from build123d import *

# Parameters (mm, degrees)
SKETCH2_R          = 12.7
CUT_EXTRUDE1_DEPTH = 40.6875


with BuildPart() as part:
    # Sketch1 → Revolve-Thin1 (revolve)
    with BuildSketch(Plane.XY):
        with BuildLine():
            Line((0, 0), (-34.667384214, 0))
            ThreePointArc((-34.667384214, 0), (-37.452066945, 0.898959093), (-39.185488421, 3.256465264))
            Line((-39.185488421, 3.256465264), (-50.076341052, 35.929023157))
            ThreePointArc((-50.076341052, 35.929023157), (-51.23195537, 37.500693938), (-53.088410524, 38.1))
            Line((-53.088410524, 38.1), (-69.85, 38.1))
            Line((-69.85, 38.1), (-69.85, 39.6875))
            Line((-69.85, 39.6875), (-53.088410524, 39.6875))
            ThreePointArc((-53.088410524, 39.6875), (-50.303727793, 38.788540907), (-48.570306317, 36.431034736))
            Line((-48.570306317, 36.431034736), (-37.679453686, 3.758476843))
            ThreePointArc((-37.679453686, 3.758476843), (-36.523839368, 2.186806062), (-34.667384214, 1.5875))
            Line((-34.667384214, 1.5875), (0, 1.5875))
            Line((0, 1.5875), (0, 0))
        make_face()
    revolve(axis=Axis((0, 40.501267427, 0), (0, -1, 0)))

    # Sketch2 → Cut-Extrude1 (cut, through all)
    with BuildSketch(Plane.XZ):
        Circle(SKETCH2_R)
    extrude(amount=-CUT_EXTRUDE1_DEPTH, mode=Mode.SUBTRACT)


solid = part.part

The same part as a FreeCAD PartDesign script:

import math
import FreeCAD as App
import Part
import Sketcher

V = App.Vector
Q = App.Units.Quantity

doc = App.newDocument("Part")
params = doc.addObject("Spreadsheet::Sheet", "Params")
for row, (alias, value) in enumerate([
    ("sketch1_radius", "0.125 in"),
    ("sketch1_radius2", "0.1875 in"),
    ("revolution_angle", "360 deg"),
    ("sketch2_diameter", "1 in"),
], start=1):
    params.set(f"A{row}", alias)
    params.set(f"B{row}", "=" + value)
    params.setAlias(f"B{row}", alias)

body = doc.addObject("PartDesign::Body", "Body")

# Sketch on XY plane
sketch1 = body.newObject("Sketcher::SketchObject", "Sketch")
sketch1.AttachmentSupport = (doc.getObject("XY_Plane"), [""])
sketch1.MapMode = "FlatFace"
sketch1.addGeometry(Part.LineSegment(V(-34.7, 0, 0), V(0, 0, 0)), False)
sketch1.addGeometry(Part.LineSegment(V(0, 0, 0), V(0, 1.6, 0)), False)
sketch1.addGeometry(Part.LineSegment(V(0, 1.6, 0), V(-34.7, 1.6, 0)), False)
sketch1.addGeometry(Part.ArcOfCircle(Part.Circle(V(-34.7, 4.8, 0), V(0, 0, 1), 3.2), math.radians(-162), math.radians(-90)), False)
sketch1.addGeometry(Part.LineSegment(V(-37.7, 3.8, 0), V(-48.6, 36.4, 0)), False)
sketch1.addGeometry(Part.ArcOfCircle(Part.Circle(V(-53.1, 34.9, 0), V(0, 0, 1), 4.8), math.radians(18), math.radians(90)), False)
sketch1.addGeometry(Part.LineSegment(V(-53.1, 39.7, 0), V(-69.8, 39.7, 0)), False)
sketch1.addGeometry(Part.LineSegment(V(-69.8, 39.7, 0), V(-69.8, 38.1, 0)), False)
sketch1.addGeometry(Part.LineSegment(V(-69.8, 38.1, 0), V(-53.1, 38.1, 0)), False)
sketch1.addGeometry(Part.ArcOfCircle(Part.Circle(V(-53.1, 34.9, 0), V(0, 0, 1), 3.2), math.radians(18), math.radians(90)), False)
sketch1.addGeometry(Part.LineSegment(V(-50.1, 35.9, 0), V(-39.2, 3.3, 0)), False)
sketch1.addGeometry(Part.ArcOfCircle(Part.Circle(V(-34.7, 4.8, 0), V(0, 0, 1), 4.8), math.radians(-162), math.radians(-90)), False)
sketch1.addConstraint(Sketcher.Constraint("Coincident", 0, 2, 1, 1))
sketch1.addConstraint(Sketcher.Constraint("Coincident", 1, 2, 2, 1))
sketch1.addConstraint(Sketcher.Constraint("Tangent", 2, 2, 3, 2))
sketch1.addConstraint(Sketcher.Constraint("Tangent", 3, 1, 4, 1))
sketch1.addConstraint(Sketcher.Constraint("Tangent", 4, 2, 5, 1))
sketch1.addConstraint(Sketcher.Constraint("Tangent", 5, 2, 6, 1))
sketch1.addConstraint(Sketcher.Constraint("Coincident", 6, 2, 7, 1))
sketch1.addConstraint(Sketcher.Constraint("Coincident", 7, 2, 8, 1))
sketch1.addConstraint(Sketcher.Constraint("Tangent", 8, 2, 9, 2))
sketch1.addConstraint(Sketcher.Constraint("Tangent", 9, 1, 10, 1))
sketch1.addConstraint(Sketcher.Constraint("Tangent", 10, 2, 11, 1))
sketch1.addConstraint(Sketcher.Constraint("Tangent", 11, 2, 0, 1))
sketch1.addConstraint(Sketcher.Constraint("Horizontal", 0))
sketch1.addConstraint(Sketcher.Constraint("Vertical", 1))
sketch1.addConstraint(Sketcher.Constraint("Horizontal", 2))
sketch1.addConstraint(Sketcher.Constraint("Horizontal", 6))
sketch1.addConstraint(Sketcher.Constraint("Vertical", 7))
sketch1.addConstraint(Sketcher.Constraint("Horizontal", 8))
sketch1.addConstraint(Sketcher.Constraint("Coincident", 0, 2, -1, 1))
sketch1.addConstraint(Sketcher.Constraint("Coincident", 9, 3, 5, 3))
sketch1.addConstraint(Sketcher.Constraint("Coincident", 11, 3, 3, 3))
sketch1.addConstraint(Sketcher.Constraint("Equal", 3, 9))
sketch1.addConstraint(Sketcher.Constraint("Equal", 5, 11))
sketch1.addConstraint(Sketcher.Constraint("Radius", 3, Q("0.125 in")))
sketch1.addConstraint(Sketcher.Constraint("Radius", 5, Q("0.1875 in")))
sketch1.addConstraint(Sketcher.Constraint("DistanceY", -1, 1, 7, 2, Q("1.5 in")))
sketch1.addConstraint(Sketcher.Constraint("DistanceX", 6, 2, -1, 1, Q("2.75 in")))
sketch1.addConstraint(Sketcher.Constraint("Distance", 4, 34.4399))
sketch1.addConstraint(Sketcher.Constraint("DistanceX", 6, 2, 6, 1, 16.761589))
sketch1.setExpression("Constraints[23]", "Params.sketch1_radius")
sketch1.setExpression("Constraints[24]", "Params.sketch1_radius2")
revolution = body.newObject("PartDesign::Revolution", "Revolution")
revolution.Profile = sketch1
revolution.ReferenceAxis = (sketch1, ["V_Axis"])
revolution.setExpression("Angle", "Params.revolution_angle")

# Sketch on XZ plane
sketch2 = body.newObject("Sketcher::SketchObject", "Sketch001")
sketch2.AttachmentSupport = (doc.getObject("XZ_Plane"), [""])
sketch2.MapMode = "FlatFace"
sketch2.addGeometry(Part.Circle(V(0, 0, 0), V(0, 0, 1), 13), False)
sketch2.addConstraint(Sketcher.Constraint("Coincident", 0, 3, -1, 1))
sketch2.addConstraint(Sketcher.Constraint("Diameter", 0, Q("1 in")))
sketch2.setExpression("Constraints[1]", "Params.sketch2_diameter")
pocket1 = body.newObject("PartDesign::Pocket", "Pocket")
pocket1.Profile = sketch2
pocket1.Type = "ThroughAll"

doc.recompute()
